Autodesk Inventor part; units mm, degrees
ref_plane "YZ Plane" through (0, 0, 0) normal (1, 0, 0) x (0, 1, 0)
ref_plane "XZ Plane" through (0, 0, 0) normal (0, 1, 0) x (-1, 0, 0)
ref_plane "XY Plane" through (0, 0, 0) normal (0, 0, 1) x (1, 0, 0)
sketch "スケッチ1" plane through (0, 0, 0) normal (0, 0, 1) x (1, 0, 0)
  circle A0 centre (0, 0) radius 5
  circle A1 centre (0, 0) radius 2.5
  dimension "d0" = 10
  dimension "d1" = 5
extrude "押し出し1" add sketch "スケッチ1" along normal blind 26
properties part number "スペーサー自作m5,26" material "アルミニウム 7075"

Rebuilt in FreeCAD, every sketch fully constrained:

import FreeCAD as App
import Part
import Sketcher

V = App.Vector

doc = App.newDocument("Part")
body = doc.addObject("PartDesign::Body", "Body")

# Sketch on XY plane
sketch1 = body.newObject("Sketcher::SketchObject", "Sketch")
sketch1.AttachmentSupport = (doc.getObject("XY_Plane"), [""])
sketch1.MapMode = "FlatFace"
sketch1.addGeometry(Part.Circle(V(0, 0, 0), V(0, 0, 1), 5), False)
sketch1.addGeometry(Part.Circle(V(0, 0, 0), V(0, 0, 1), 2.5), False)
sketch1.addConstraint(Sketcher.Constraint("Coincident", 0, 3, -1, 1))
sketch1.addConstraint(Sketcher.Constraint("Coincident", 1, 3, -1, 1))
sketch1.addConstraint(Sketcher.Constraint("Diameter", 0, 10.0))
sketch1.addConstraint(Sketcher.Constraint("Diameter", 1, 5.0))
pad1 = body.newObject("PartDesign::Pad", "Pad")
pad1.Profile = sketch1
pad1.Length = 26

doc.recompute()
